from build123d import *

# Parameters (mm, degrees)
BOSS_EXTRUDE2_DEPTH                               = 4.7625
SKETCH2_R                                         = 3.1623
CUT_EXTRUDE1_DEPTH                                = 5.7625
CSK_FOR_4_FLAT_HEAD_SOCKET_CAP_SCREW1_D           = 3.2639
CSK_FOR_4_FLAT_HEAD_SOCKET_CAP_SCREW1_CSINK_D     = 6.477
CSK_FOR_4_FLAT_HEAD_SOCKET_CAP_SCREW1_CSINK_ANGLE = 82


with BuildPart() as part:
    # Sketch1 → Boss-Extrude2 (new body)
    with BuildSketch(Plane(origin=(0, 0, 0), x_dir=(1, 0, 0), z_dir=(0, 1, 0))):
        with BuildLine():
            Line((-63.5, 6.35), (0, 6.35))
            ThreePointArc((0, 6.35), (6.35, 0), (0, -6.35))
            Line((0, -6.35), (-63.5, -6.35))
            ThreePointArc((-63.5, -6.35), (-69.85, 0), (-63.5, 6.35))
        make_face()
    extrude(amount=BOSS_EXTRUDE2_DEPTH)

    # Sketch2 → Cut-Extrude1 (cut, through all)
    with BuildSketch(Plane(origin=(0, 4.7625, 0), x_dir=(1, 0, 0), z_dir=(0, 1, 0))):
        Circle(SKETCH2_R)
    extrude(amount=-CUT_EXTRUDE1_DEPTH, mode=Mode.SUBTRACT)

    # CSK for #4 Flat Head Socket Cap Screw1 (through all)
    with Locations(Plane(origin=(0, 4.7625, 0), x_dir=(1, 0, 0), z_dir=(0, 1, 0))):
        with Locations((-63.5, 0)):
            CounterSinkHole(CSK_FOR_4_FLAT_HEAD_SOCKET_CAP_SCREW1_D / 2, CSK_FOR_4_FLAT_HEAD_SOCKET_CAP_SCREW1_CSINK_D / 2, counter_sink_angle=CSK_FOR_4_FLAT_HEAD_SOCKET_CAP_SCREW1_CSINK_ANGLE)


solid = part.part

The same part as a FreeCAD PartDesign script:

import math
import FreeCAD as App
import Part
import Sketcher

V = App.Vector
Q = App.Units.Quantity

doc = App.newDocument("Part")
body = doc.addObject("PartDesign::Body", "Body")

# Sketch on XZ plane
sketch1 = body.newObject("Sketcher::SketchObject", "Sketch")
sketch1.AttachmentSupport = (doc.getObject("XZ_Plane"), [""])
sketch1.MapMode = "FlatFace"
sketch1.addGeometry(Part.LineSegment(V(0, -6, 0), V(-64, -6, 0)), False)
sketch1.addGeometry(Part.ArcOfCircle(Part.Circle(V(-64, 0, 0), V(0, 0, 1), 6), math.radians(90), math.radians(270)), False)
sketch1.addGeometry(Part.LineSegment(V(-64, 6, 0), V(0, 6, 0)), False)
sketch1.addGeometry(Part.ArcOfCircle(Part.Circle(V(0, 0, 0), V(0, 0, 1), 6), math.radians(-90), math.radians(90)), False)
sketch1.addConstraint(Sketcher.Constraint("Tangent", 0, 2, 1, 2))
sketch1.addConstraint(Sketcher.Constraint("Tangent", 1, 1, 2, 1))
sketch1.addConstraint(Sketcher.Constraint("Tangent", 2, 2, 3, 2))
sketch1.addConstraint(Sketcher.Constraint("Tangent", 3, 1, 0, 1))
sketch1.addConstraint(Sketcher.Constraint("Horizontal", 0))
sketch1.addConstraint(Sketcher.Constraint("Horizontal", 2))
sketch1.addConstraint(Sketcher.Constraint("Coincident", 3, 3, -1, 1))
sketch1.addConstraint(Sketcher.Constraint("Radius", 1, Q("0.25 in")))
sketch1.addConstraint(Sketcher.Constraint("DistanceX", 0, 2, 0, 1, Q("2.5 in")))
pad1 = body.newObject("PartDesign::Pad", "Pad")
pad1.Profile = sketch1
pad1.Length = Q("0.1875 in")
pad1.Reversed = True

# Sketch on XZ plane
sketch2 = body.newObject("Sketcher::SketchObject", "Sketch001")
sketch2.AttachmentSupport = (doc.getObject("XZ_Plane"), [""])
sketch2.MapMode = "FlatFace"
sketch2.AttachmentOffset = App.Placement(V(0, 0, -0.1875 * 25.4), App.Rotation())
sketch2.addGeometry(Part.Circle(V(0, 0, 0), V(0, 0, 1), 3.2), False)
sketch2.addConstraint(Sketcher.Constraint("Coincident", 0, 3, -1, 1))
sketch2.addConstraint(Sketcher.Constraint("Diameter", 0, Q("0.249 in")))
pocket1 = body.newObject("PartDesign::Pocket", "Pocket")
pocket1.Profile = sketch2
pocket1.Type = "ThroughAll"
pocket1.Reversed = True

# Sketch on XZ plane
sketch3 = body.newObject("Sketcher::SketchObject", "Sketch002")
sketch3.AttachmentSupport = (doc.getObject("XZ_Plane"), [""])
sketch3.MapMode = "FlatFace"
sketch3.AttachmentOffset = App.Placement(V(0, 0, -0.1875 * 25.4), App.Rotation())
sketch3.addGeometry(Part.Circle(V(-63.5, 0, 0), V(0, 0, 1), 1.6), False)
sketch3.addConstraint(Sketcher.Constraint("PointOnObject", 0, 3, -1))
sketch3.addConstraint(Sketcher.Constraint("Diameter", 0, Q("0.1285 in")))
sketch3.addConstraint(Sketcher.Constraint("DistanceX", 0, 3, -1, 1, Q("2.5 in")))
doc.recompute()
hole = body.newObject("PartDesign::Hole", "Hole")
hole.Profile = sketch3
hole.ThreadType = "None"
hole.Diameter = Q("0.1285 in")
hole.DepthType = "ThroughAll"
hole.HoleCutType = "Countersink"
hole.HoleCutDiameter = Q("0.255 in")
hole.HoleCutCountersinkAngle = 82
hole.Reversed = True

doc.recompute()
